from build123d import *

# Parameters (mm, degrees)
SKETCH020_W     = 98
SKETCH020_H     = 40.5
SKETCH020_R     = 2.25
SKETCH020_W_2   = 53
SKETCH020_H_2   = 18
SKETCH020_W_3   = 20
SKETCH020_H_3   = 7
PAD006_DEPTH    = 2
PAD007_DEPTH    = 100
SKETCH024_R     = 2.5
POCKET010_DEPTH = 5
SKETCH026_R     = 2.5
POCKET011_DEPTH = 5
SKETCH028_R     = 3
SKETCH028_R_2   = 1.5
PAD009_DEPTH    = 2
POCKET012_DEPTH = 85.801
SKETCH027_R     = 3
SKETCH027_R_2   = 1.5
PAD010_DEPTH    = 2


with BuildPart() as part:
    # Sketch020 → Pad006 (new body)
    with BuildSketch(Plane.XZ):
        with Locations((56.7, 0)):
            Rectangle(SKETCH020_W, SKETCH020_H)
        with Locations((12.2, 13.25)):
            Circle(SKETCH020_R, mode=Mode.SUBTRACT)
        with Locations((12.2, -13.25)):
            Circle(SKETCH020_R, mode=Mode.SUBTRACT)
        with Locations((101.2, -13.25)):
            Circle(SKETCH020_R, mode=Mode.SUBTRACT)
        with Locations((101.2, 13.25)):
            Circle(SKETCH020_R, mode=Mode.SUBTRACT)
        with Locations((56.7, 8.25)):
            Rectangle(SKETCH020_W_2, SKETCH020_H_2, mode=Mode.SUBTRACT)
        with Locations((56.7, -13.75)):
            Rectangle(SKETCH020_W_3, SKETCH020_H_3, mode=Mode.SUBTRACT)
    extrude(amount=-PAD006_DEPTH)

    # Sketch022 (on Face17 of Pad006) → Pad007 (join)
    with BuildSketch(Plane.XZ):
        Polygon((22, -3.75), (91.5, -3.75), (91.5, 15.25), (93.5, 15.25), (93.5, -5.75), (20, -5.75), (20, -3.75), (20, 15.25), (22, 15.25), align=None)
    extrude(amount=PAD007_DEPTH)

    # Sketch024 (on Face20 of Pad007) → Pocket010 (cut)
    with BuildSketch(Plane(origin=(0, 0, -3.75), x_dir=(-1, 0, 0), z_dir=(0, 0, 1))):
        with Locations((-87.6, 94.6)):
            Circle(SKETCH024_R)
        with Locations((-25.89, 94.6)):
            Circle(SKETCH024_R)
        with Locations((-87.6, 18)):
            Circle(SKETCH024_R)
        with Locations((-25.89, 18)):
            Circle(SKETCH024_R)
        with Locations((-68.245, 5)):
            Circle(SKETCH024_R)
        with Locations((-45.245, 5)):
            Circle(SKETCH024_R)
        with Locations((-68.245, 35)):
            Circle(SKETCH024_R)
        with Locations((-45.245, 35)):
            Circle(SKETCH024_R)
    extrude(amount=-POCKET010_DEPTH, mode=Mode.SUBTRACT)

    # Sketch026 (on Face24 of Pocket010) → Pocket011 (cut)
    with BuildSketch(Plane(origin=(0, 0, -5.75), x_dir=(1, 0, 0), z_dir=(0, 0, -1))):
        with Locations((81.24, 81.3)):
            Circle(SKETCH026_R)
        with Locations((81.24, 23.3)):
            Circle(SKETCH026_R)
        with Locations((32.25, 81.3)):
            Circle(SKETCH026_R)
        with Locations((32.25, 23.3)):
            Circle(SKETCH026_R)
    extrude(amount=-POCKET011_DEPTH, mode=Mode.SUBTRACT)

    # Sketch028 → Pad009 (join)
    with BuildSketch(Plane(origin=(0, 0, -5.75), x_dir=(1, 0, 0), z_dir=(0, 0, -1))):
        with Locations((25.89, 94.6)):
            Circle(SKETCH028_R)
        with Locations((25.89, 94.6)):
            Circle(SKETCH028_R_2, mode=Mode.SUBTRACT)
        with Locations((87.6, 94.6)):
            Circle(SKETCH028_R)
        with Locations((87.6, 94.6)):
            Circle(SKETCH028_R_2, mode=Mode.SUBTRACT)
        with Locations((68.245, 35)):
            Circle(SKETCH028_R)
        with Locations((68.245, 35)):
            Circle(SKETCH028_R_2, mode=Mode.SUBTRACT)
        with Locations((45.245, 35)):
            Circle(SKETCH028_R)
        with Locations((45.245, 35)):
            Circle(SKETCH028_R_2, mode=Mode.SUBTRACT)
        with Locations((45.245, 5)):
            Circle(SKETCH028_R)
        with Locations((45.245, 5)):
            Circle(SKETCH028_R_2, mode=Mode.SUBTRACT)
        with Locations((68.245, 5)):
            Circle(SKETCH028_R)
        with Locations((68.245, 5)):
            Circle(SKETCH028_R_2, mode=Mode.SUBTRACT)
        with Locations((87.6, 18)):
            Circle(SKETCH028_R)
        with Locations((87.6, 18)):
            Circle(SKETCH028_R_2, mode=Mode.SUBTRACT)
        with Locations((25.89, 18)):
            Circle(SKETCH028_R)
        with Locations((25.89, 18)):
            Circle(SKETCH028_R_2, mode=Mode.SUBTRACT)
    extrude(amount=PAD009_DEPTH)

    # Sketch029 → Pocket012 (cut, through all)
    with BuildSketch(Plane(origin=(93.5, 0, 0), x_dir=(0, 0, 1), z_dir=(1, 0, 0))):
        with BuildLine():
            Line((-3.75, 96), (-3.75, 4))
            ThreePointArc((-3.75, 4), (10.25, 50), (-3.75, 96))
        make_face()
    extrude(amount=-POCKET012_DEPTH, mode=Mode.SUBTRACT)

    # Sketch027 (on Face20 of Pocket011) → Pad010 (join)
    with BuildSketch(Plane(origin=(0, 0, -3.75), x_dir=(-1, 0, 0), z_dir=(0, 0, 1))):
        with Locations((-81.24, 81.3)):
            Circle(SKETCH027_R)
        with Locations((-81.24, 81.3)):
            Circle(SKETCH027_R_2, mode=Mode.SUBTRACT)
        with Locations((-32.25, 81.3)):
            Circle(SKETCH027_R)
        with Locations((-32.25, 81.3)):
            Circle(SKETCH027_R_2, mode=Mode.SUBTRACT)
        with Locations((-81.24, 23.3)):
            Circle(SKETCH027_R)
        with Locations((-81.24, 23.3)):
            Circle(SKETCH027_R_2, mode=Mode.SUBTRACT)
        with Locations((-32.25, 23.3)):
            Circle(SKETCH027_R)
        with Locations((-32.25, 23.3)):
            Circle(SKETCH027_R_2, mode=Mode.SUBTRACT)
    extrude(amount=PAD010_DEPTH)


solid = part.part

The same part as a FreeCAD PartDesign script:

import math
import FreeCAD as App
import Part
import Sketcher


def add_polygon(sketch, points):
    """Adds a closed chain of lines whose ends are joined by coincident constraints."""
    first, n = sketch.GeometryCount, len(points)
    for a, b in zip(points, points[1:] + points[:1]):
        sketch.addGeometry(Part.LineSegment(App.Vector(*a, 0), App.Vector(*b, 0)), False)
    for i in range(n):
        sketch.addConstraint(Sketcher.Constraint("Coincident", first + i, 2, first + (i + 1) % n, 1))

doc = App.newDocument("Part")
body = doc.addObject("PartDesign::Body", "Body")

sketch1 = doc.addObject("Sketcher::SketchObject", "Sketch")
body.addObject(sketch1)
sketch1.AttachmentSupport = (doc.XZ_Plane, [""])
sketch1.MapMode = "FlatFace"
add_polygon(sketch1, [(7.7, 20.2), (7.7, -20.2), (105.7, -20.2), (105.7, 20.2)])
sketch1.addGeometry(Part.Circle(App.Vector(12.2, -13.2, 0), App.Vector(0, 0, 1), 2.2), False)
add_polygon(sketch1, [(66.7, -17.2), (46.7, -17.2), (46.7, -10.2), (66.7, -10.2)])
sketch1.addGeometry(Part.Circle(App.Vector(101.2, -13.2, 0), App.Vector(0, 0, 1), 2.2), False)
add_polygon(sketch1, [(83.2, -0.8), (30.2, -0.8), (30.2, 17.2), (83.2, 17.2)])
sketch1.addGeometry(Part.Circle(App.Vector(12.2, 13.2, 0), App.Vector(0, 0, 1), 2.2), False)
sketch1.addGeometry(Part.Circle(App.Vector(101.2, 13.2, 0), App.Vector(0, 0, 1), 2.2), False)
sketch1.addConstraint(Sketcher.Constraint("Vertical", 0))
sketch1.addConstraint(Sketcher.Constraint("Horizontal", 1))
sketch1.addConstraint(Sketcher.Constraint("Vertical", 2))
sketch1.addConstraint(Sketcher.Constraint("Horizontal", 3))
sketch1.addConstraint(Sketcher.Constraint("Horizontal", 5))
sketch1.addConstraint(Sketcher.Constraint("Vertical", 6))
sketch1.addConstraint(Sketcher.Constraint("Horizontal", 7))
sketch1.addConstraint(Sketcher.Constraint("Vertical", 8))
sketch1.addConstraint(Sketcher.Constraint("Horizontal", 10))
sketch1.addConstraint(Sketcher.Constraint("Vertical", 11))
sketch1.addConstraint(Sketcher.Constraint("Horizontal", 12))
sketch1.addConstraint(Sketcher.Constraint("Vertical", 13))
sketch1.addConstraint(Sketcher.Constraint("Equal", 4, 9))
sketch1.addConstraint(Sketcher.Constraint("Equal", 9, 14))
sketch1.addConstraint(Sketcher.Constraint("Equal", 14, 15))
sketch1.addConstraint(Sketcher.Constraint("Symmetric", 4, 3, 14, 3, -1))
sketch1.addConstraint(Sketcher.Constraint("Symmetric", 9, 3, 15, 3, -1))
sketch1.addConstraint(Sketcher.Constraint("Horizontal", 4, 3, 9, 3))
sketch1.addConstraint(Sketcher.Constraint("Diameter", 4, 4.5))
sketch1.addConstraint(Sketcher.Constraint("DistanceX", 1, 1, 1, 2, 98.0))
sketch1.addConstraint(Sketcher.Constraint("DistanceX", 5, 2, 5, 1, 20.0))
sketch1.addConstraint(Sketcher.Constraint("DistanceX", 10, 2, 10, 1, 53.0))
sketch1.addConstraint(Sketcher.Constraint("DistanceY", 6, 1, 6, 2, 7.0))
sketch1.addConstraint(Sketcher.Constraint("DistanceY", 11, 1, 11, 2, 18.0))
sketch1.addConstraint(Sketcher.Constraint("DistanceY", 0, 2, 0, 1, 40.5))
sketch1.addConstraint(Sketcher.Constraint("DistanceX", 4, 3, 9, 3, 89.0))
sketch1.addConstraint(Sketcher.Constraint("DistanceY", 0, 2, 4, 3, 7.0))
sketch1.addConstraint(Sketcher.Constraint("DistanceY", 15, 3, 2, 2, 7.0))
sketch1.addConstraint(Sketcher.Constraint("DistanceY", 5, 2, 4, 3, 4.0))
sketch1.addConstraint(Sketcher.Constraint("DistanceX", 0, 2, 5, 2, 39.0))
sketch1.addConstraint(Sketcher.Constraint("DistanceX", 4, 3, 10, 2, 18.0))
sketch1.addConstraint(Sketcher.Constraint("DistanceY", 10, 2, 14, 3, 14.0))
sketch1.addConstraint(Sketcher.Constraint("DistanceX", -1, 1, 4, 3, 12.2))
sketch1.addConstraint(Sketcher.Constraint("DistanceX", -1, 1, 0, 2, 7.7))
pad1 = doc.addObject("PartDesign::Pad", "Pad")
body.addObject(pad1)
pad1.Profile = sketch1
pad1.Length = 2
pad1.Reversed = True

sketch2 = doc.addObject("Sketcher::SketchObject", "Sketch001")
body.addObject(sketch2)
sketch2.AttachmentSupport = (doc.XZ_Plane, [""])
sketch2.MapMode = "FlatFace"
add_polygon(sketch2, [(91.5, -3.8), (22, -3.8), (22, 15.2), (20, 15.2), (20, -5.8), (93.5, -5.8), (93.5, 15.2), (91.5, 15.2)])
sketch2.addConstraint(Sketcher.Constraint("Horizontal", 0))
sketch2.addConstraint(Sketcher.Constraint("Vertical", 1))
sketch2.addConstraint(Sketcher.Constraint("Horizontal", 2))
sketch2.addConstraint(Sketcher.Constraint("Vertical", 3))
sketch2.addConstraint(Sketcher.Constraint("Horizontal", 4))
sketch2.addConstraint(Sketcher.Constraint("Vertical", 5))
sketch2.addConstraint(Sketcher.Constraint("Horizontal", 6))
sketch2.addConstraint(Sketcher.Constraint("Vertical", 7))
sketch2.addConstraint(Sketcher.Constraint("Horizontal", 2, 2, 5, 2))
sketch2.addConstraint(Sketcher.Constraint("Equal", 2, 6))
sketch2.addConstraint(Sketcher.Constraint("DistanceX", 2, 2, 2, 1, 2.0))
sketch2.addConstraint(Sketcher.Constraint("DistanceY", 1, 1, 1, 2, 19.0))
sketch2.addConstraint(Sketcher.Constraint("DistanceY", 3, 2, 3, 1, 21.0))
sketch2.addConstraint(Sketcher.Constraint("DistanceX", 0, 2, 0, 1, 69.5))
sketch2.addConstraint(Sketcher.Constraint("DistanceX", -1, 1, 0, 2, 22.0))
sketch2.addConstraint(Sketcher.Constraint("DistanceY", 0, 2, -1, 1, 3.75))
pad2 = doc.addObject("PartDesign::Pad", "Pad001")
body.addObject(pad2)
pad2.Profile = sketch2
pad2.Length = 100

sketch3 = doc.addObject("Sketcher::SketchObject", "Sketch002")
body.addObject(sketch3)
sketch3.AttachmentSupport = (doc.XY_Plane, [""])
sketch3.MapMode = "FlatFace"
sketch3.AttachmentOffset = App.Placement(App.Vector(0, 0, -3.75), App.Rotation())
sketch3.addGeometry(Part.Circle(App.Vector(87.6, -94.6, 0), App.Vector(0, 0, 1), 2.5), False)
sketch3.addGeometry(Part.Circle(App.Vector(25.9, -94.6, 0), App.Vector(0, 0, 1), 2.5), False)
sketch3.addGeometry(Part.Circle(App.Vector(87.6, -18, 0), App.Vector(0, 0, 1), 2.5), False)
sketch3.addGeometry(Part.Circle(App.Vector(25.9, -18, 0), App.Vector(0, 0, 1), 2.5), False)
sketch3.addGeometry(Part.Circle(App.Vector(68.2, -5, 0), App.Vector(0, 0, 1), 2.5), False)
sketch3.addGeometry(Part.Circle(App.Vector(45.2, -5, 0), App.Vector(0, 0, 1), 2.5), False)
sketch3.addGeometry(Part.Circle(App.Vector(68.2, -35, 0), App.Vector(0, 0, 1), 2.5), False)
sketch3.addGeometry(Part.Circle(App.Vector(45.2, -35, 0), App.Vector(0, 0, 1), 2.5), False)
sketch3.addConstraint(Sketcher.Constraint("Equal", 0, 1))
sketch3.addConstraint(Sketcher.Constraint("Equal", 1, 2))
sketch3.addConstraint(Sketcher.Constraint("Equal", 2, 3))
sketch3.addConstraint(Sketcher.Constraint("Equal", 3, 4))
sketch3.addConstraint(Sketcher.Constraint("Equal", 4, 5))
sketch3.addConstraint(Sketcher.Constraint("Equal", 5, 6))
sketch3.addConstraint(Sketcher.Constraint("Equal", 6, 7))
sketch3.addConstraint(Sketcher.Constraint("Horizontal", 0, 3, 1, 3))
sketch3.addConstraint(Sketcher.Constraint("Horizontal", 2, 3, 3, 3))
sketch3.addConstraint(Sketcher.Constraint("Horizontal", 4, 3, 5, 3))
sketch3.addConstraint(Sketcher.Constraint("Horizontal", 6, 3, 7, 3))
sketch3.addConstraint(Sketcher.Constraint("Vertical", 0, 3, 2, 3))
sketch3.addConstraint(Sketcher.Constraint("Vertical", 1, 3, 3, 3))
sketch3.addConstraint(Sketcher.Constraint("Vertical", 4, 3, 6, 3))
sketch3.addConstraint(Sketcher.Constraint("Vertical", 5, 3, 7, 3))
sketch3.addConstraint(Sketcher.Constraint("Diameter", 0, 5.0))
sketch3.addConstraint(Sketcher.Constraint("DistanceY", 2, 3, -1, 1, 18.0))
sketch3.addConstraint(Sketcher.Constraint("DistanceY", 4, 3, -1, 1, 5.0))
sketch3.addConstraint(Sketcher.Constraint("DistanceY", 6, 3, -1, 1, 35.0))
sketch3.addConstraint(Sketcher.Constraint("DistanceX", 5, 3, 4, 3, 23.0))
sketch3.addConstraint(Sketcher.Constraint("DistanceX", -1, 1, 0, 3, 87.6))
sketch3.addConstraint(Sketcher.Constraint("DistanceY", 0, 3, -1, 1, 94.6))
sketch3.addConstraint(Sketcher.Constraint("DistanceX", -1, 1, 1, 3, 25.89))
sketch3.addConstraint(Sketcher.Constraint("DistanceX", -1, 1, 4, 3, 68.245))
pocket1 = doc.addObject("PartDesign::Pocket", "Pocket")
body.addObject(pocket1)
pocket1.Profile = sketch3
pocket1.Length = 5

sketch4 = doc.addObject("Sketcher::SketchObject", "Sketch003")
body.addObject(sketch4)
sketch4.AttachmentSupport = (doc.XY_Plane, [""])
sketch4.MapMode = "FlatFace"
sketch4.AttachmentOffset = App.Placement(App.Vector(0, 0, -5.75), App.Rotation())
sketch4.addGeometry(Part.Circle(App.Vector(81.2, -81.3, 0), App.Vector(0, 0, 1), 2.5), False)
sketch4.addGeometry(Part.Circle(App.Vector(81.2, -23.3, 0), App.Vector(0, 0, 1), 2.5), False)
sketch4.addGeometry(Part.Circle(App.Vector(32.2, -81.3, 0), App.Vector(0, 0, 1), 2.5), False)
sketch4.addGeometry(Part.Circle(App.Vector(32.2, -23.3, 0), App.Vector(0, 0, 1), 2.5), False)
sketch4.addConstraint(Sketcher.Constraint("Equal", 0, 1))
sketch4.addConstraint(Sketcher.Constraint("Equal", 1, 2))
sketch4.addConstraint(Sketcher.Constraint("Equal", 2, 3))
sketch4.addConstraint(Sketcher.Constraint("Horizontal", 0, 3, 2, 3))
sketch4.addConstraint(Sketcher.Constraint("Horizontal", 1, 3, 3, 3))
sketch4.addConstraint(Sketcher.Constraint("Vertical", 0, 3, 1, 3))
sketch4.addConstraint(Sketcher.Constraint("Vertical", 2, 3, 3, 3))
sketch4.addConstraint(Sketcher.Constraint("Diameter", 0, 5.0))
sketch4.addConstraint(Sketcher.Constraint("DistanceY", 0, 3, 1, 3, 58.0))
sketch4.addConstraint(Sketcher.Constraint("DistanceY", 0, 3, -1, 1, 81.3))
sketch4.addConstraint(Sketcher.Constraint("DistanceX", -1, 1, 0, 3, 81.24))
sketch4.addConstraint(Sketcher.Constraint("DistanceX", -1, 1, 2, 3, 32.25))
pocket2 = doc.addObject("PartDesign::Pocket", "Pocket001")
body.addObject(pocket2)
pocket2.Profile = sketch4
pocket2.Length = 5
pocket2.Reversed = True

sketch5 = doc.addObject("Sketcher::SketchObject", "Sketch004")
body.addObject(sketch5)
sketch5.AttachmentSupport = (doc.XY_Plane, [""])
sketch5.MapMode = "FlatFace"
sketch5.AttachmentOffset = App.Placement(App.Vector(0, 0, -5.75), App.Rotation())
sketch5.addGeometry(Part.Circle(App.Vector(25.9, -94.6, 0), App.Vector(0, 0, 1), 3), False)
sketch5.addGeometry(Part.Circle(App.Vector(25.9, -94.6, 0), App.Vector(0, 0, 1), 1.5), False)
sketch5.addGeometry(Part.Circle(App.Vector(87.6, -94.6, 0), App.Vector(0, 0, 1), 3), False)
sketch5.addGeometry(Part.Circle(App.Vector(87.6, -94.6, 0), App.Vector(0, 0, 1), 1.5), False)
sketch5.addGeometry(Part.Circle(App.Vector(68.2, -35, 0), App.Vector(0, 0, 1), 3), False)
sketch5.addGeometry(Part.Circle(App.Vector(68.2, -35, 0), App.Vector(0, 0, 1), 1.5), False)
sketch5.addGeometry(Part.Circle(App.Vector(45.2, -35, 0), App.Vector(0, 0, 1), 3), False)
sketch5.addGeometry(Part.Circle(App.Vector(45.2, -35, 0), App.Vector(0, 0, 1), 1.5), False)
sketch5.addGeometry(Part.Circle(App.Vector(45.2, -5, 0), App.Vector(0, 0, 1), 3), False)
sketch5.addGeometry(Part.Circle(App.Vector(45.2, -5, 0), App.Vector(0, 0, 1), 1.5), False)
sketch5.addGeometry(Part.Circle(App.Vector(68.2, -5, 0), App.Vector(0, 0, 1), 3), False)
sketch5.addGeometry(Part.Circle(App.Vector(68.2, -5, 0), App.Vector(0, 0, 1), 1.5), False)
sketch5.addGeometry(Part.Circle(App.Vector(87.6, -18, 0), App.Vector(0, 0, 1), 3), False)
sketch5.addGeometry(Part.Circle(App.Vector(87.6, -18, 0), App.Vector(0, 0, 1), 1.5), False)
sketch5.addGeometry(Part.Circle(App.Vector(25.9, -18, 0), App.Vector(0, 0, 1), 3), False)
sketch5.addGeometry(Part.Circle(App.Vector(25.9, -18, 0), App.Vector(0, 0, 1), 1.5), False)
sketch5.addConstraint(Sketcher.Constraint("Coincident", 1, 3, 0, 3))
sketch5.addConstraint(Sketcher.Constraint("Coincident", 3, 3, 2, 3))
sketch5.addConstraint(Sketcher.Constraint("Coincident", 5, 3, 4, 3))
sketch5.addConstraint(Sketcher.Constraint("Coincident", 7, 3, 6, 3))
sketch5.addConstraint(Sketcher.Constraint("Coincident", 9, 3, 8, 3))
sketch5.addConstraint(Sketcher.Constraint("Coincident", 11, 3, 10, 3))
sketch5.addConstraint(Sketcher.Constraint("Coincident", 13, 3, 12, 3))
sketch5.addConstraint(Sketcher.Constraint("Coincident", 15, 3, 14, 3))
sketch5.addConstraint(Sketcher.Constraint("Equal", 0, 2))
sketch5.addConstraint(Sketcher.Constraint("Equal", 1, 3))
sketch5.addConstraint(Sketcher.Constraint("Equal", 2, 4))
sketch5.addConstraint(Sketcher.Constraint("Equal", 3, 5))
sketch5.addConstraint(Sketcher.Constraint("Equal", 4, 6))
sketch5.addConstraint(Sketcher.Constraint("Equal", 5, 7))
sketch5.addConstraint(Sketcher.Constraint("Equal", 6, 8))
sketch5.addConstraint(Sketcher.Constraint("Equal", 7, 9))
sketch5.addConstraint(Sketcher.Constraint("Equal", 8, 10))
sketch5.addConstraint(Sketcher.Constraint("Equal", 9, 11))
sketch5.addConstraint(Sketcher.Constraint("Equal", 10, 12))
sketch5.addConstraint(Sketcher.Constraint("Equal", 11, 13))
sketch5.addConstraint(Sketcher.Constraint("Equal", 12, 14))
sketch5.addConstraint(Sketcher.Constraint("Equal", 13, 15))
sketch5.addConstraint(Sketcher.Constraint("Horizontal", 1, 3, 2, 3))
sketch5.addConstraint(Sketcher.Constraint("Horizontal", 5, 3, 6, 3))
sketch5.addConstraint(Sketcher.Constraint("Horizontal", 9, 3, 10, 3))
sketch5.addConstraint(Sketcher.Constraint("Horizontal", 13, 3, 14, 3))
sketch5.addConstraint(Sketcher.Constraint("Vertical", 7, 3, 8, 3))
sketch5.addConstraint(Sketcher.Constraint("Vertical", 5, 3, 10, 3))
sketch5.addConstraint(Sketcher.Constraint("Vertical", 3, 3, 12, 3))
sketch5.addConstraint(Sketcher.Constraint("Vertical", 1, 3, 14, 3))
sketch5.addConstraint(Sketcher.Constraint("Diameter", 0, 6.0))
sketch5.addConstraint(Sketcher.Constraint("Diameter", 1, 3.0))
sketch5.addConstraint(Sketcher.Constraint("DistanceY", 4, 3, -1, 1, 35.0))
sketch5.addConstraint(Sketcher.Constraint("DistanceY", 8, 3, -1, 1, 5.0))
sketch5.addConstraint(Sketcher.Constraint("DistanceY", 12, 3, -1, 1, 18.0))
sketch5.addConstraint(Sketcher.Constraint("DistanceX", 6, 3, 4, 3, 23.0))
sketch5.addConstraint(Sketcher.Constraint("DistanceY", 0, 3, -1, 1, 94.6))
sketch5.addConstraint(Sketcher.Constraint("DistanceX", -1, 1, 2, 3, 87.6))
sketch5.addConstraint(Sketcher.Constraint("DistanceX", -1, 1, 0, 3, 25.89))
sketch5.addConstraint(Sketcher.Constraint("DistanceX", -1, 1, 4, 3, 68.245))
pad3 = doc.addObject("PartDesign::Pad", "Pad002")
body.addObject(pad3)
pad3.Profile = sketch5
pad3.Length = 2
pad3.Reversed = True

sketch6 = doc.addObject("Sketcher::SketchObject", "Sketch005")
body.addObject(sketch6)
sketch6.AttachmentSupport = (doc.YZ_Plane, [""])
sketch6.MapMode = "FlatFace"
sketch6.AttachmentOffset = App.Placement(App.Vector(0, 0, 93.5), App.Rotation())
sketch6.addGeometry(Part.LineSegment(App.Vector(-96, -4, 0), App.Vector(-4, -4, 0)), False)
sketch6.addGeometry(Part.ArcOfCircle(Part.Circle(App.Vector(-50, -72, 0), App.Vector(0, 0, 1), 83), math.radians(56), math.radians(124)), False)
sketch6.addConstraint(Sketcher.Constraint("Coincident", 0, 1, 1, 2))
sketch6.addConstraint(Sketcher.Constraint("Coincident", 1, 1, 0, 2))
sketch6.addConstraint(Sketcher.Constraint("Horizontal", 0))
sketch6.addConstraint(Sketcher.Constraint("DistanceX", 0, 1, 0, 2, 92.0))
sketch6.addConstraint(Sketcher.Constraint("DistanceX", 1, 3, -1, 1, 50.0))
sketch6.addConstraint(Sketcher.Constraint("DistanceY", 0, 1, -1, 1, 3.75))
sketch6.addConstraint(Sketcher.Constraint("Radius", 1, 82.571429))
pocket3 = doc.addObject("PartDesign::Pocket", "Pocket002")
body.addObject(pocket3)
pocket3.Profile = sketch6
pocket3.Type = "ThroughAll"

sketch7 = doc.addObject("Sketcher::SketchObject", "Sketch006")
body.addObject(sketch7)
sketch7.AttachmentSupport = (doc.XY_Plane, [""])
sketch7.MapMode = "FlatFace"
sketch7.AttachmentOffset = App.Placement(App.Vector(0, 0, -3.75), App.Rotation())
sketch7.addGeometry(Part.Circle(App.Vector(81.2, -81.3, 0), App.Vector(0, 0, 1), 3), False)
sketch7.addGeometry(Part.Circle(App.Vector(81.2, -81.3, 0), App.Vector(0, 0, 1), 1.5), False)
sketch7.addGeometry(Part.Circle(App.Vector(32.2, -81.3, 0), App.Vector(0, 0, 1), 3), False)
sketch7.addGeometry(Part.Circle(App.Vector(32.2, -81.3, 0), App.Vector(0, 0, 1), 1.5), False)
sketch7.addGeometry(Part.Circle(App.Vector(81.2, -23.3, 0), App.Vector(0, 0, 1), 3), False)
sketch7.addGeometry(Part.Circle(App.Vector(81.2, -23.3, 0), App.Vector(0, 0, 1), 1.5), False)
sketch7.addGeometry(Part.Circle(App.Vector(32.2, -23.3, 0), App.Vector(0, 0, 1), 3), False)
sketch7.addGeometry(Part.Circle(App.Vector(32.2, -23.3, 0), App.Vector(0, 0, 1), 1.5), False)
sketch7.addConstraint(Sketcher.Constraint("Coincident", 1, 3, 0, 3))
sketch7.addConstraint(Sketcher.Constraint("Coincident", 3, 3, 2, 3))
sketch7.addConstraint(Sketcher.Constraint("Coincident", 5, 3, 4, 3))
sketch7.addConstraint(Sketcher.Constraint("Coincident", 7, 3, 6, 3))
sketch7.addConstraint(Sketcher.Constraint("Equal", 0, 2))
sketch7.addConstraint(Sketcher.Constraint("Equal", 1, 3))
sketch7.addConstraint(Sketcher.Constraint("Equal", 2, 4))
sketch7.addConstraint(Sketcher.Constraint("Equal", 3, 5))
sketch7.addConstraint(Sketcher.Constraint("Equal", 4, 6))
sketch7.addConstraint(Sketcher.Constraint("Equal", 5, 7))
sketch7.addConstraint(Sketcher.Constraint("Horizontal", 1, 3, 2, 3))
sketch7.addConstraint(Sketcher.Constraint("Horizontal", 5, 3, 6, 3))
sketch7.addConstraint(Sketcher.Constraint("Vertical", 1, 3, 4, 3))
sketch7.addConstraint(Sketcher.Constraint("Vertical", 3, 3, 6, 3))
sketch7.addConstraint(Sketcher.Constraint("Diameter", 0, 6.0))
sketch7.addConstraint(Sketcher.Constraint("Diameter", 1, 3.0))
sketch7.addConstraint(Sketcher.Constraint("DistanceY", 0, 3, 4, 3, 58.0))
sketch7.addConstraint(Sketcher.Constraint("DistanceY", 0, 3, -1, 1, 81.3))
sketch7.addConstraint(Sketcher.Constraint("DistanceX", -1, 1, 0, 3, 81.24))
sketch7.addConstraint(Sketcher.Constraint("DistanceX", -1, 1, 2, 3, 32.25))
pad4 = doc.addObject("PartDesign::Pad", "Pad003")
body.addObject(pad4)
pad4.Profile = sketch7
pad4.Length = 2

doc.recompute()
